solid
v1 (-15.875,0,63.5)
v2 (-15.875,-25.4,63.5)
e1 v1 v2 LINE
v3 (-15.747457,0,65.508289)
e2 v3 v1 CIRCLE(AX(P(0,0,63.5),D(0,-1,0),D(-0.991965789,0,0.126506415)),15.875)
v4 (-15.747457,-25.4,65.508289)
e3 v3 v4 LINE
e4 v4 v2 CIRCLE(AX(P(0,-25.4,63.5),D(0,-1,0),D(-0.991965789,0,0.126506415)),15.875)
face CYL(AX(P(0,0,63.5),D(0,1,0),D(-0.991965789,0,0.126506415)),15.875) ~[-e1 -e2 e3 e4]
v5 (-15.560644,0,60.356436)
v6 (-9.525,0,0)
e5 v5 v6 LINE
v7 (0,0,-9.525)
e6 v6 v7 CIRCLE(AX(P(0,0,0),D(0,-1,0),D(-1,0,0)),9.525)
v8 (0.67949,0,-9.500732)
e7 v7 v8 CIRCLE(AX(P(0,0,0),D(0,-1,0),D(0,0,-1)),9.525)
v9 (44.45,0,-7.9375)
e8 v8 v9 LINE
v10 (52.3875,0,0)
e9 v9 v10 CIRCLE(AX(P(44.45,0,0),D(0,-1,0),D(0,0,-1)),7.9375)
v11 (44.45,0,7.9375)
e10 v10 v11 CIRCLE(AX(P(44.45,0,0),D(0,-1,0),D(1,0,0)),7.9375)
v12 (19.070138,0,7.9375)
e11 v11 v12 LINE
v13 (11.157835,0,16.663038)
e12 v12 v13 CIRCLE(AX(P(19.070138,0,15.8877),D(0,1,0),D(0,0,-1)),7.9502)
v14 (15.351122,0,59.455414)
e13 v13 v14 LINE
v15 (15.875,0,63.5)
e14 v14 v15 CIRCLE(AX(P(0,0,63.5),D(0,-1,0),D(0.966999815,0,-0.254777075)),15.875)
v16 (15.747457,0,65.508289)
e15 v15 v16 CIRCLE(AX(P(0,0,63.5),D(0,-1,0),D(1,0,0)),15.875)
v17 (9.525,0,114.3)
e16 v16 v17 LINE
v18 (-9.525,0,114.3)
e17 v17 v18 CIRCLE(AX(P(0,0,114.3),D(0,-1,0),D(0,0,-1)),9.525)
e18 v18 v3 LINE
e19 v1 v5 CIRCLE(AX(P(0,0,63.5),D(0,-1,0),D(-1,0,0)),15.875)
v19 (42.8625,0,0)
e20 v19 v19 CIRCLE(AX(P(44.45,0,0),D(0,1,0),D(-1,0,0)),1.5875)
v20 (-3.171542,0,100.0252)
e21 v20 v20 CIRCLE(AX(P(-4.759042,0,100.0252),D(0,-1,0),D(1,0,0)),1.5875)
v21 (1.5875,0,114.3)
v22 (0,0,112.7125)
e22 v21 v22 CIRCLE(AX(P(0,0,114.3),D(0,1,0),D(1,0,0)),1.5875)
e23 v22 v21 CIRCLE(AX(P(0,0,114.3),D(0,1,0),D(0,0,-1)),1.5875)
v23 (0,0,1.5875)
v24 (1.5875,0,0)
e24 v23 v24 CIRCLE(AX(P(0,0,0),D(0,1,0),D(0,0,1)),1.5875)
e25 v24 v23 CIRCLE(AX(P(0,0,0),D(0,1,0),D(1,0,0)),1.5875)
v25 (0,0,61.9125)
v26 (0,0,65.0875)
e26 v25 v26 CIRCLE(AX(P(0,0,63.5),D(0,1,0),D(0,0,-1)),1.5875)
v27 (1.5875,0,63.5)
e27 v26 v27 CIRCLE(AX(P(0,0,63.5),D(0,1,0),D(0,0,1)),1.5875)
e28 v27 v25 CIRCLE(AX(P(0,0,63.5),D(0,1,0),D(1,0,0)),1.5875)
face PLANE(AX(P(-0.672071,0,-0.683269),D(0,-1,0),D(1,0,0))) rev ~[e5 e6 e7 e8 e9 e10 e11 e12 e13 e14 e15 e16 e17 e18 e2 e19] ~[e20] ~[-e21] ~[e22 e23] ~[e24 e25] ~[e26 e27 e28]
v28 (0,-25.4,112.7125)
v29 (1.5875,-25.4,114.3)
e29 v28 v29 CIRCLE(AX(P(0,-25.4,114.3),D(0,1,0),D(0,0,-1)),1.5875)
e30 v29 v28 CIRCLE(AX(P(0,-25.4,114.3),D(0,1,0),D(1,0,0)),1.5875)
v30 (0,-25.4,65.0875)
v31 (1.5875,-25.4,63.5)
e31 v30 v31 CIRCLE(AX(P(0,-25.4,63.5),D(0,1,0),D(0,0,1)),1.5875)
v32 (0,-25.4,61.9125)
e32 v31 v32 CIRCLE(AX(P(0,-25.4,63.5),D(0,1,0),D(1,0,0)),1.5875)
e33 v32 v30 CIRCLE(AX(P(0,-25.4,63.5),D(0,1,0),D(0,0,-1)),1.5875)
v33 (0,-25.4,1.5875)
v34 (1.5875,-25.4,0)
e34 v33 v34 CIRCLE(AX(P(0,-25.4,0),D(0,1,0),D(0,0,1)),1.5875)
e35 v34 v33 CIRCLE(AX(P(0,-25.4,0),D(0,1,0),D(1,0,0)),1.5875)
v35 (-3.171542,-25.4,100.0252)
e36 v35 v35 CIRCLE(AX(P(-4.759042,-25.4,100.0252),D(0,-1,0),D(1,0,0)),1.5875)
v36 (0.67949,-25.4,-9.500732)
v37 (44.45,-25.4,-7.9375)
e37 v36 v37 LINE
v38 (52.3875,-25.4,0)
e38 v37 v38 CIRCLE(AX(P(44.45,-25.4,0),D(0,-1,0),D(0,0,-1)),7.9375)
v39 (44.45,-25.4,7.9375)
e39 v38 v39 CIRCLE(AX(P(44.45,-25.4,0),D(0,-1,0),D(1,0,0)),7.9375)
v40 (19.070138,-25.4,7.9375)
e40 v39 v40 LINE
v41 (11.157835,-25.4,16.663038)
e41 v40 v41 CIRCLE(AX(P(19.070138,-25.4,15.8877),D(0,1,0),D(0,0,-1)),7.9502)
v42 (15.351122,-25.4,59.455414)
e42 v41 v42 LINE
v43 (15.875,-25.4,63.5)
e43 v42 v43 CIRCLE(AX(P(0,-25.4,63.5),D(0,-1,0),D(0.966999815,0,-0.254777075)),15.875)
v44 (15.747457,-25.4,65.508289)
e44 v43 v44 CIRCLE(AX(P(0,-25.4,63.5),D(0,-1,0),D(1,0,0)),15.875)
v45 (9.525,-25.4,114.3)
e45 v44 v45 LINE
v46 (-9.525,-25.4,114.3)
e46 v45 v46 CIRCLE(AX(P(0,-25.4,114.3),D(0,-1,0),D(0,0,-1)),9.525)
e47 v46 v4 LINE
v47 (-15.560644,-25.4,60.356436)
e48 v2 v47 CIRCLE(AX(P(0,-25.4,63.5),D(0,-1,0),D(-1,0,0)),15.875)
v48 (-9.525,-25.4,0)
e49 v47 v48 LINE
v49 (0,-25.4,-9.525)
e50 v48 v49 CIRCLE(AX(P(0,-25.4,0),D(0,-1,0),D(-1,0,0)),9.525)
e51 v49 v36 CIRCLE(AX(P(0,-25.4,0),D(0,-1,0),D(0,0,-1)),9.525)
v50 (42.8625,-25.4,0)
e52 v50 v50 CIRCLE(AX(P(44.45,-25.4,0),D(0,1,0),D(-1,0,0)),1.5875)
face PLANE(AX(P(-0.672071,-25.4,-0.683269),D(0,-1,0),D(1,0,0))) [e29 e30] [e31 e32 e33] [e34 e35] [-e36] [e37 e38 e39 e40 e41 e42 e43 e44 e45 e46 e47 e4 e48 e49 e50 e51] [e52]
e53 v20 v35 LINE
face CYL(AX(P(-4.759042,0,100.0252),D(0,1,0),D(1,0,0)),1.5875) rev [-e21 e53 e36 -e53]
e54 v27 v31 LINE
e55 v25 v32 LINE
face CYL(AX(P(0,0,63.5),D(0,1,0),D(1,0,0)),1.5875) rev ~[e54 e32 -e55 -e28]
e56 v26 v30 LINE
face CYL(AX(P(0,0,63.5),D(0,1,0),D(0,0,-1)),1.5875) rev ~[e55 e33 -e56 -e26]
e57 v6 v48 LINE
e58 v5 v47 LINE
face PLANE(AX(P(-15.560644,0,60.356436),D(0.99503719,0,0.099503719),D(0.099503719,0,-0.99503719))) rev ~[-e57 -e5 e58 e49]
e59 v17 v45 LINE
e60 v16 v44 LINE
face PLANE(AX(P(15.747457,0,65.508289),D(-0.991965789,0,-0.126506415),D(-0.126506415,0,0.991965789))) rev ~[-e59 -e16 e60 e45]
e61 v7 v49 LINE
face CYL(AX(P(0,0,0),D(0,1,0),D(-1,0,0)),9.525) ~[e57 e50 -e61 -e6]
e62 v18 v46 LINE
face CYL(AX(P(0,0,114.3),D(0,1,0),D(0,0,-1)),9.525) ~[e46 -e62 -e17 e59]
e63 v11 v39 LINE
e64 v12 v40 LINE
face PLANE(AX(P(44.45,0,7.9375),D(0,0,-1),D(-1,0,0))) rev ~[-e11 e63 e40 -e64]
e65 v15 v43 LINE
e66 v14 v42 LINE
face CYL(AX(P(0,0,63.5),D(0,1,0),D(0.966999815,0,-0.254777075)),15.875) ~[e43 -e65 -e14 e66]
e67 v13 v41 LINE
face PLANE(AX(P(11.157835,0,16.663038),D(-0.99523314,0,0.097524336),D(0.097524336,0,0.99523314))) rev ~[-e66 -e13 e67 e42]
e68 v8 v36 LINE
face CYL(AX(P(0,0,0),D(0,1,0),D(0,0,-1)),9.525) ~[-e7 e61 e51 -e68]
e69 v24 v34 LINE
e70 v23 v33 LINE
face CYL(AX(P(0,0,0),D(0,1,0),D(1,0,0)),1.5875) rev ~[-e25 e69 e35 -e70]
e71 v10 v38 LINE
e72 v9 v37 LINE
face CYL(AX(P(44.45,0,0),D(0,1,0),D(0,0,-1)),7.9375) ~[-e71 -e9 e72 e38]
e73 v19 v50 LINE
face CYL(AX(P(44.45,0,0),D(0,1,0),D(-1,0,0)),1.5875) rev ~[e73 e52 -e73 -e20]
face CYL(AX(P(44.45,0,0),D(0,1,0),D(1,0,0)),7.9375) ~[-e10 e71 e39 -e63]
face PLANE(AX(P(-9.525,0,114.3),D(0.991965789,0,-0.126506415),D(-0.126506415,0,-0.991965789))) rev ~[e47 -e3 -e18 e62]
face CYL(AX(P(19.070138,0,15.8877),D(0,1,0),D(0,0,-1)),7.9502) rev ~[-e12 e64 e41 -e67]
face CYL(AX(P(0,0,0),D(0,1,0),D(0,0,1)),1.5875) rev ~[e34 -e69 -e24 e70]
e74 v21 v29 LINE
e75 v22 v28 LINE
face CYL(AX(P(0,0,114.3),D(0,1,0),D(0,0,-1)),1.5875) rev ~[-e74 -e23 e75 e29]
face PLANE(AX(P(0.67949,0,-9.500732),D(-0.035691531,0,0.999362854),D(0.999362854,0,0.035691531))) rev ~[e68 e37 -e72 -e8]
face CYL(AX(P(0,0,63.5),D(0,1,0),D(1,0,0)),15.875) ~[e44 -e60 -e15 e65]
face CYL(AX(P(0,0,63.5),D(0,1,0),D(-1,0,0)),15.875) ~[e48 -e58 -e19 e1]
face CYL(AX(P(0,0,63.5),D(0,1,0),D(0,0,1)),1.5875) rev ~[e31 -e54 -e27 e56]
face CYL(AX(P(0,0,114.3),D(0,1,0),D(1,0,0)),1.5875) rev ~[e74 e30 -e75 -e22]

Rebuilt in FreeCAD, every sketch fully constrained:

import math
import FreeCAD as App
import Part
import Sketcher
from FreeCAD import Vector
Q = App.Units.Quantity

doc = App.newDocument("Part")
body = doc.addObject("PartDesign::Body", "Body")

# Sketch on XZ plane
sketch1 = doc.addObject("Sketcher::SketchObject", "Sketch")
body.addObject(sketch1)
sketch1.AttachmentSupport = (doc.XZ_Plane, [""])
sketch1.MapMode = "FlatFace"
sketch1.addGeometry([
    Part.LineSegment(Vector(-15.6, 60.4, 0), Vector(-9.5, 0, 0)),  # 0
    Part.ArcOfCircle(Part.Circle(Vector(0, 0, 0), Vector(0, 0, 1), 9.5), math.radians(180), math.radians(270)),  # 1
    Part.ArcOfCircle(Part.Circle(Vector(0, 0, 0), Vector(0, 0, 1), 9.5), math.radians(-90), math.radians(-85.91)),  # 2
    Part.LineSegment(Vector(0.7, -9.5, 0), Vector(44.5, -7.9, 0)),  # 3
    Part.ArcOfCircle(Part.Circle(Vector(44.5, 0, 0), Vector(0, 0, 1), 7.9), math.radians(-90), math.radians(0)),  # 4
    Part.ArcOfCircle(Part.Circle(Vector(44.5, 0, 0), Vector(0, 0, 1), 7.9), math.radians(0), math.radians(90)),  # 5
    Part.LineSegment(Vector(44.5, 7.9, 0), Vector(19.1, 7.9, 0)),  # 6
    Part.ArcOfCircle(Part.Circle(Vector(19.1, 15.9, 0), Vector(0, 0, 1), 8), math.radians(174), math.radians(270)),  # 7
    Part.LineSegment(Vector(11.2, 16.7, 0), Vector(15.4, 59.5, 0)),  # 8
    Part.ArcOfCircle(Part.Circle(Vector(0, 63.5, 0), Vector(0, 0, 1), 15.9), math.radians(-14.76), math.radians(0)),  # 9
    Part.ArcOfCircle(Part.Circle(Vector(0, 63.5, 0), Vector(0, 0, 1), 15.9), math.radians(0), math.radians(7.27)),  # 10
    Part.LineSegment(Vector(15.7, 65.5, 0), Vector(9.5, 114.3, 0)),  # 11
    Part.ArcOfCircle(Part.Circle(Vector(0, 114.3, 0), Vector(0, 0, 1), 9.5), math.radians(0), math.radians(180)),  # 12
    Part.LineSegment(Vector(-9.5, 114.3, 0), Vector(-15.7, 65.5, 0)),  # 13
    Part.ArcOfCircle(Part.Circle(Vector(0, 63.5, 0), Vector(0, 0, 1), 15.9), math.radians(172.73), math.radians(180)),  # 14
    Part.ArcOfCircle(Part.Circle(Vector(0, 63.5, 0), Vector(0, 0, 1), 15.9), math.radians(180), math.radians(191.42)),  # 15
    Part.ArcOfCircle(Part.Circle(Vector(0, 0, 0), Vector(0, 0, 1), 1.6), math.radians(90), math.radians(360)),  # 16
    Part.ArcOfCircle(Part.Circle(Vector(0, 0, 0), Vector(0, 0, 1), 1.6), math.radians(0), math.radians(90)),  # 17
    Part.Circle(Vector(44.5, 0, 0), Vector(0, 0, 1), 1.6),  # 18
    Part.ArcOfCircle(Part.Circle(Vector(0, 63.5, 0), Vector(0, 0, 1), 1.6), math.radians(0), math.radians(90)),  # 19
    Part.ArcOfCircle(Part.Circle(Vector(0, 63.5, 0), Vector(0, 0, 1), 1.6), math.radians(-90), math.radians(0)),  # 20
    Part.ArcOfCircle(Part.Circle(Vector(0, 63.5, 0), Vector(0, 0, 1), 1.6), math.radians(90), math.radians(270)),  # 21
    Part.Circle(Vector(-4.8, 100, 0), Vector(0, 0, 1), 1.6),  # 22
    Part.ArcOfCircle(Part.Circle(Vector(0, 114.3, 0), Vector(0, 0, 1), 1.6), math.radians(0), math.radians(270)),  # 23
    Part.ArcOfCircle(Part.Circle(Vector(0, 114.3, 0), Vector(0, 0, 1), 1.6), math.radians(-90), math.radians(0)),  # 24
], False)
sketch1.addConstraint([
    Sketcher.Constraint("Coincident", 0, 2, 1, 1),
    Sketcher.Constraint("Tangent", 1, 2, 2, 1),
    Sketcher.Constraint("Coincident", 2, 2, 3, 1),
    Sketcher.Constraint("Coincident", 3, 2, 4, 1),
    Sketcher.Constraint("Tangent", 4, 2, 5, 1),
    Sketcher.Constraint("Tangent", 5, 2, 6, 1),
    Sketcher.Constraint("Tangent", 6, 2, 7, 2),
    Sketcher.Constraint("Tangent", 7, 1, 8, 1),
    Sketcher.Constraint("Coincident", 8, 2, 9, 1),
    Sketcher.Constraint("Tangent", 9, 2, 10, 1),
    Sketcher.Constraint("Tangent", 10, 2, 11, 1),
    Sketcher.Constraint("Coincident", 11, 2, 12, 1),
    Sketcher.Constraint("Coincident", 12, 2, 13, 1),
    Sketcher.Constraint("Tangent", 13, 2, 14, 1),
    Sketcher.Constraint("Tangent", 14, 2, 15, 1),
    Sketcher.Constraint("Coincident", 15, 2, 0, 1),
    Sketcher.Constraint("Tangent", 16, 1, 17, 2),
    Sketcher.Constraint("Coincident", 17, 1, 16, 2),
    Sketcher.Constraint("Tangent", 19, 1, 20, 2),
    Sketcher.Constraint("Tangent", 20, 1, 21, 2),
    Sketcher.Constraint("Tangent", 21, 1, 19, 2),
    Sketcher.Constraint("Tangent", 23, 1, 24, 2),
    Sketcher.Constraint("Coincident", 24, 1, 23, 2),
    Sketcher.Constraint("Horizontal", 6),
    Sketcher.Constraint("Coincident", 1, 3, -1, 1),
    Sketcher.Constraint("Coincident", 16, 3, -1, 1),
    Sketcher.Constraint("Coincident", 14, 3, 9, 3),
    Sketcher.Constraint("Coincident", 18, 3, 4, 3),
    Sketcher.Constraint("Coincident", 19, 3, 9, 3),
    Sketcher.Constraint("Coincident", 23, 3, 12, 3),
    Sketcher.Constraint("Equal", 1, 2),
    Sketcher.Constraint("Equal", 4, 5),
    Sketcher.Constraint("Equal", 9, 10),
    Sketcher.Constraint("Equal", 2, 12),
    Sketcher.Constraint("Equal", 10, 14),
    Sketcher.Constraint("Equal", 14, 15),
    Sketcher.Constraint("Equal", 17, 18),
    Sketcher.Constraint("Equal", 18, 19),
    Sketcher.Constraint("Equal", 21, 22),
    Sketcher.Constraint("Equal", 22, 23),
    Sketcher.Constraint("Symmetric", 11, 2, 12, 2, -2),
    Sketcher.Constraint("Symmetric", 9, 2, 14, 2, -2),
    Sketcher.Constraint("Symmetric", 3, 2, 5, 2, -1),
    Sketcher.Constraint("PointOnObject", 0, 2, -1),
    Sketcher.Constraint("PointOnObject", 1, 2, -2),
    Sketcher.Constraint("PointOnObject", 4, 2, -1),
    Sketcher.Constraint("PointOnObject", 16, 1, -2),
    Sketcher.Constraint("PointOnObject", 17, 1, -1),
    Sketcher.Constraint("PointOnObject", 20, 1, -2),
    Sketcher.Constraint("PointOnObject", 21, 1, -2),
    Sketcher.Constraint("PointOnObject", 24, 1, -2),
    Sketcher.Constraint("Horizontal", 21, 3, 9, 2),
    Sketcher.Constraint("Horizontal", 24, 3, 11, 2),
    Sketcher.Constraint("Horizontal", 14, 2, 19, 1),
    Sketcher.Constraint("Horizontal", 12, 2, 23, 1),
    Sketcher.Constraint("Diameter", 18, Q("0.125 in")),
    Sketcher.Constraint("Radius", 1, Q("0.375 in")),
    Sketcher.Constraint("Radius", 4, Q("0.3125 in")),
    Sketcher.Constraint("Radius", 7, Q("0.313 in")),
    Sketcher.Constraint("Radius", 9, Q("0.625 in")),
    Sketcher.Constraint("DistanceY", 10, 3, 12, 3, Q("2 in")),
    Sketcher.Constraint("DistanceY", -1, 1, 9, 3, Q("2.5 in")),
    Sketcher.Constraint("DistanceX", -1, 1, 4, 3, Q("1.75 in")),
    Sketcher.Constraint("DistanceY", -1, 1, 22, 3, Q("3.938 in")),
    Sketcher.Constraint("Distance", 8, Q("42.997338 mm")),
    Sketcher.Constraint("DistanceX", 6, 2, 6, 1, Q("25.379862 mm")),
    Sketcher.Constraint("DistanceX", -1, 1, 2, 2, Q("0.67949 mm")),
    Sketcher.Constraint("Distance", 0, Q("60.657467 mm")),
    Sketcher.Constraint("DistanceX", 22, 3, -1, 1, Q("4.759042 mm")),
])
pad1 = doc.addObject("PartDesign::Pad", "Pad")
body.addObject(pad1)
pad1.Profile = sketch1
pad1.Length = Q("1 in")

doc.recompute()
